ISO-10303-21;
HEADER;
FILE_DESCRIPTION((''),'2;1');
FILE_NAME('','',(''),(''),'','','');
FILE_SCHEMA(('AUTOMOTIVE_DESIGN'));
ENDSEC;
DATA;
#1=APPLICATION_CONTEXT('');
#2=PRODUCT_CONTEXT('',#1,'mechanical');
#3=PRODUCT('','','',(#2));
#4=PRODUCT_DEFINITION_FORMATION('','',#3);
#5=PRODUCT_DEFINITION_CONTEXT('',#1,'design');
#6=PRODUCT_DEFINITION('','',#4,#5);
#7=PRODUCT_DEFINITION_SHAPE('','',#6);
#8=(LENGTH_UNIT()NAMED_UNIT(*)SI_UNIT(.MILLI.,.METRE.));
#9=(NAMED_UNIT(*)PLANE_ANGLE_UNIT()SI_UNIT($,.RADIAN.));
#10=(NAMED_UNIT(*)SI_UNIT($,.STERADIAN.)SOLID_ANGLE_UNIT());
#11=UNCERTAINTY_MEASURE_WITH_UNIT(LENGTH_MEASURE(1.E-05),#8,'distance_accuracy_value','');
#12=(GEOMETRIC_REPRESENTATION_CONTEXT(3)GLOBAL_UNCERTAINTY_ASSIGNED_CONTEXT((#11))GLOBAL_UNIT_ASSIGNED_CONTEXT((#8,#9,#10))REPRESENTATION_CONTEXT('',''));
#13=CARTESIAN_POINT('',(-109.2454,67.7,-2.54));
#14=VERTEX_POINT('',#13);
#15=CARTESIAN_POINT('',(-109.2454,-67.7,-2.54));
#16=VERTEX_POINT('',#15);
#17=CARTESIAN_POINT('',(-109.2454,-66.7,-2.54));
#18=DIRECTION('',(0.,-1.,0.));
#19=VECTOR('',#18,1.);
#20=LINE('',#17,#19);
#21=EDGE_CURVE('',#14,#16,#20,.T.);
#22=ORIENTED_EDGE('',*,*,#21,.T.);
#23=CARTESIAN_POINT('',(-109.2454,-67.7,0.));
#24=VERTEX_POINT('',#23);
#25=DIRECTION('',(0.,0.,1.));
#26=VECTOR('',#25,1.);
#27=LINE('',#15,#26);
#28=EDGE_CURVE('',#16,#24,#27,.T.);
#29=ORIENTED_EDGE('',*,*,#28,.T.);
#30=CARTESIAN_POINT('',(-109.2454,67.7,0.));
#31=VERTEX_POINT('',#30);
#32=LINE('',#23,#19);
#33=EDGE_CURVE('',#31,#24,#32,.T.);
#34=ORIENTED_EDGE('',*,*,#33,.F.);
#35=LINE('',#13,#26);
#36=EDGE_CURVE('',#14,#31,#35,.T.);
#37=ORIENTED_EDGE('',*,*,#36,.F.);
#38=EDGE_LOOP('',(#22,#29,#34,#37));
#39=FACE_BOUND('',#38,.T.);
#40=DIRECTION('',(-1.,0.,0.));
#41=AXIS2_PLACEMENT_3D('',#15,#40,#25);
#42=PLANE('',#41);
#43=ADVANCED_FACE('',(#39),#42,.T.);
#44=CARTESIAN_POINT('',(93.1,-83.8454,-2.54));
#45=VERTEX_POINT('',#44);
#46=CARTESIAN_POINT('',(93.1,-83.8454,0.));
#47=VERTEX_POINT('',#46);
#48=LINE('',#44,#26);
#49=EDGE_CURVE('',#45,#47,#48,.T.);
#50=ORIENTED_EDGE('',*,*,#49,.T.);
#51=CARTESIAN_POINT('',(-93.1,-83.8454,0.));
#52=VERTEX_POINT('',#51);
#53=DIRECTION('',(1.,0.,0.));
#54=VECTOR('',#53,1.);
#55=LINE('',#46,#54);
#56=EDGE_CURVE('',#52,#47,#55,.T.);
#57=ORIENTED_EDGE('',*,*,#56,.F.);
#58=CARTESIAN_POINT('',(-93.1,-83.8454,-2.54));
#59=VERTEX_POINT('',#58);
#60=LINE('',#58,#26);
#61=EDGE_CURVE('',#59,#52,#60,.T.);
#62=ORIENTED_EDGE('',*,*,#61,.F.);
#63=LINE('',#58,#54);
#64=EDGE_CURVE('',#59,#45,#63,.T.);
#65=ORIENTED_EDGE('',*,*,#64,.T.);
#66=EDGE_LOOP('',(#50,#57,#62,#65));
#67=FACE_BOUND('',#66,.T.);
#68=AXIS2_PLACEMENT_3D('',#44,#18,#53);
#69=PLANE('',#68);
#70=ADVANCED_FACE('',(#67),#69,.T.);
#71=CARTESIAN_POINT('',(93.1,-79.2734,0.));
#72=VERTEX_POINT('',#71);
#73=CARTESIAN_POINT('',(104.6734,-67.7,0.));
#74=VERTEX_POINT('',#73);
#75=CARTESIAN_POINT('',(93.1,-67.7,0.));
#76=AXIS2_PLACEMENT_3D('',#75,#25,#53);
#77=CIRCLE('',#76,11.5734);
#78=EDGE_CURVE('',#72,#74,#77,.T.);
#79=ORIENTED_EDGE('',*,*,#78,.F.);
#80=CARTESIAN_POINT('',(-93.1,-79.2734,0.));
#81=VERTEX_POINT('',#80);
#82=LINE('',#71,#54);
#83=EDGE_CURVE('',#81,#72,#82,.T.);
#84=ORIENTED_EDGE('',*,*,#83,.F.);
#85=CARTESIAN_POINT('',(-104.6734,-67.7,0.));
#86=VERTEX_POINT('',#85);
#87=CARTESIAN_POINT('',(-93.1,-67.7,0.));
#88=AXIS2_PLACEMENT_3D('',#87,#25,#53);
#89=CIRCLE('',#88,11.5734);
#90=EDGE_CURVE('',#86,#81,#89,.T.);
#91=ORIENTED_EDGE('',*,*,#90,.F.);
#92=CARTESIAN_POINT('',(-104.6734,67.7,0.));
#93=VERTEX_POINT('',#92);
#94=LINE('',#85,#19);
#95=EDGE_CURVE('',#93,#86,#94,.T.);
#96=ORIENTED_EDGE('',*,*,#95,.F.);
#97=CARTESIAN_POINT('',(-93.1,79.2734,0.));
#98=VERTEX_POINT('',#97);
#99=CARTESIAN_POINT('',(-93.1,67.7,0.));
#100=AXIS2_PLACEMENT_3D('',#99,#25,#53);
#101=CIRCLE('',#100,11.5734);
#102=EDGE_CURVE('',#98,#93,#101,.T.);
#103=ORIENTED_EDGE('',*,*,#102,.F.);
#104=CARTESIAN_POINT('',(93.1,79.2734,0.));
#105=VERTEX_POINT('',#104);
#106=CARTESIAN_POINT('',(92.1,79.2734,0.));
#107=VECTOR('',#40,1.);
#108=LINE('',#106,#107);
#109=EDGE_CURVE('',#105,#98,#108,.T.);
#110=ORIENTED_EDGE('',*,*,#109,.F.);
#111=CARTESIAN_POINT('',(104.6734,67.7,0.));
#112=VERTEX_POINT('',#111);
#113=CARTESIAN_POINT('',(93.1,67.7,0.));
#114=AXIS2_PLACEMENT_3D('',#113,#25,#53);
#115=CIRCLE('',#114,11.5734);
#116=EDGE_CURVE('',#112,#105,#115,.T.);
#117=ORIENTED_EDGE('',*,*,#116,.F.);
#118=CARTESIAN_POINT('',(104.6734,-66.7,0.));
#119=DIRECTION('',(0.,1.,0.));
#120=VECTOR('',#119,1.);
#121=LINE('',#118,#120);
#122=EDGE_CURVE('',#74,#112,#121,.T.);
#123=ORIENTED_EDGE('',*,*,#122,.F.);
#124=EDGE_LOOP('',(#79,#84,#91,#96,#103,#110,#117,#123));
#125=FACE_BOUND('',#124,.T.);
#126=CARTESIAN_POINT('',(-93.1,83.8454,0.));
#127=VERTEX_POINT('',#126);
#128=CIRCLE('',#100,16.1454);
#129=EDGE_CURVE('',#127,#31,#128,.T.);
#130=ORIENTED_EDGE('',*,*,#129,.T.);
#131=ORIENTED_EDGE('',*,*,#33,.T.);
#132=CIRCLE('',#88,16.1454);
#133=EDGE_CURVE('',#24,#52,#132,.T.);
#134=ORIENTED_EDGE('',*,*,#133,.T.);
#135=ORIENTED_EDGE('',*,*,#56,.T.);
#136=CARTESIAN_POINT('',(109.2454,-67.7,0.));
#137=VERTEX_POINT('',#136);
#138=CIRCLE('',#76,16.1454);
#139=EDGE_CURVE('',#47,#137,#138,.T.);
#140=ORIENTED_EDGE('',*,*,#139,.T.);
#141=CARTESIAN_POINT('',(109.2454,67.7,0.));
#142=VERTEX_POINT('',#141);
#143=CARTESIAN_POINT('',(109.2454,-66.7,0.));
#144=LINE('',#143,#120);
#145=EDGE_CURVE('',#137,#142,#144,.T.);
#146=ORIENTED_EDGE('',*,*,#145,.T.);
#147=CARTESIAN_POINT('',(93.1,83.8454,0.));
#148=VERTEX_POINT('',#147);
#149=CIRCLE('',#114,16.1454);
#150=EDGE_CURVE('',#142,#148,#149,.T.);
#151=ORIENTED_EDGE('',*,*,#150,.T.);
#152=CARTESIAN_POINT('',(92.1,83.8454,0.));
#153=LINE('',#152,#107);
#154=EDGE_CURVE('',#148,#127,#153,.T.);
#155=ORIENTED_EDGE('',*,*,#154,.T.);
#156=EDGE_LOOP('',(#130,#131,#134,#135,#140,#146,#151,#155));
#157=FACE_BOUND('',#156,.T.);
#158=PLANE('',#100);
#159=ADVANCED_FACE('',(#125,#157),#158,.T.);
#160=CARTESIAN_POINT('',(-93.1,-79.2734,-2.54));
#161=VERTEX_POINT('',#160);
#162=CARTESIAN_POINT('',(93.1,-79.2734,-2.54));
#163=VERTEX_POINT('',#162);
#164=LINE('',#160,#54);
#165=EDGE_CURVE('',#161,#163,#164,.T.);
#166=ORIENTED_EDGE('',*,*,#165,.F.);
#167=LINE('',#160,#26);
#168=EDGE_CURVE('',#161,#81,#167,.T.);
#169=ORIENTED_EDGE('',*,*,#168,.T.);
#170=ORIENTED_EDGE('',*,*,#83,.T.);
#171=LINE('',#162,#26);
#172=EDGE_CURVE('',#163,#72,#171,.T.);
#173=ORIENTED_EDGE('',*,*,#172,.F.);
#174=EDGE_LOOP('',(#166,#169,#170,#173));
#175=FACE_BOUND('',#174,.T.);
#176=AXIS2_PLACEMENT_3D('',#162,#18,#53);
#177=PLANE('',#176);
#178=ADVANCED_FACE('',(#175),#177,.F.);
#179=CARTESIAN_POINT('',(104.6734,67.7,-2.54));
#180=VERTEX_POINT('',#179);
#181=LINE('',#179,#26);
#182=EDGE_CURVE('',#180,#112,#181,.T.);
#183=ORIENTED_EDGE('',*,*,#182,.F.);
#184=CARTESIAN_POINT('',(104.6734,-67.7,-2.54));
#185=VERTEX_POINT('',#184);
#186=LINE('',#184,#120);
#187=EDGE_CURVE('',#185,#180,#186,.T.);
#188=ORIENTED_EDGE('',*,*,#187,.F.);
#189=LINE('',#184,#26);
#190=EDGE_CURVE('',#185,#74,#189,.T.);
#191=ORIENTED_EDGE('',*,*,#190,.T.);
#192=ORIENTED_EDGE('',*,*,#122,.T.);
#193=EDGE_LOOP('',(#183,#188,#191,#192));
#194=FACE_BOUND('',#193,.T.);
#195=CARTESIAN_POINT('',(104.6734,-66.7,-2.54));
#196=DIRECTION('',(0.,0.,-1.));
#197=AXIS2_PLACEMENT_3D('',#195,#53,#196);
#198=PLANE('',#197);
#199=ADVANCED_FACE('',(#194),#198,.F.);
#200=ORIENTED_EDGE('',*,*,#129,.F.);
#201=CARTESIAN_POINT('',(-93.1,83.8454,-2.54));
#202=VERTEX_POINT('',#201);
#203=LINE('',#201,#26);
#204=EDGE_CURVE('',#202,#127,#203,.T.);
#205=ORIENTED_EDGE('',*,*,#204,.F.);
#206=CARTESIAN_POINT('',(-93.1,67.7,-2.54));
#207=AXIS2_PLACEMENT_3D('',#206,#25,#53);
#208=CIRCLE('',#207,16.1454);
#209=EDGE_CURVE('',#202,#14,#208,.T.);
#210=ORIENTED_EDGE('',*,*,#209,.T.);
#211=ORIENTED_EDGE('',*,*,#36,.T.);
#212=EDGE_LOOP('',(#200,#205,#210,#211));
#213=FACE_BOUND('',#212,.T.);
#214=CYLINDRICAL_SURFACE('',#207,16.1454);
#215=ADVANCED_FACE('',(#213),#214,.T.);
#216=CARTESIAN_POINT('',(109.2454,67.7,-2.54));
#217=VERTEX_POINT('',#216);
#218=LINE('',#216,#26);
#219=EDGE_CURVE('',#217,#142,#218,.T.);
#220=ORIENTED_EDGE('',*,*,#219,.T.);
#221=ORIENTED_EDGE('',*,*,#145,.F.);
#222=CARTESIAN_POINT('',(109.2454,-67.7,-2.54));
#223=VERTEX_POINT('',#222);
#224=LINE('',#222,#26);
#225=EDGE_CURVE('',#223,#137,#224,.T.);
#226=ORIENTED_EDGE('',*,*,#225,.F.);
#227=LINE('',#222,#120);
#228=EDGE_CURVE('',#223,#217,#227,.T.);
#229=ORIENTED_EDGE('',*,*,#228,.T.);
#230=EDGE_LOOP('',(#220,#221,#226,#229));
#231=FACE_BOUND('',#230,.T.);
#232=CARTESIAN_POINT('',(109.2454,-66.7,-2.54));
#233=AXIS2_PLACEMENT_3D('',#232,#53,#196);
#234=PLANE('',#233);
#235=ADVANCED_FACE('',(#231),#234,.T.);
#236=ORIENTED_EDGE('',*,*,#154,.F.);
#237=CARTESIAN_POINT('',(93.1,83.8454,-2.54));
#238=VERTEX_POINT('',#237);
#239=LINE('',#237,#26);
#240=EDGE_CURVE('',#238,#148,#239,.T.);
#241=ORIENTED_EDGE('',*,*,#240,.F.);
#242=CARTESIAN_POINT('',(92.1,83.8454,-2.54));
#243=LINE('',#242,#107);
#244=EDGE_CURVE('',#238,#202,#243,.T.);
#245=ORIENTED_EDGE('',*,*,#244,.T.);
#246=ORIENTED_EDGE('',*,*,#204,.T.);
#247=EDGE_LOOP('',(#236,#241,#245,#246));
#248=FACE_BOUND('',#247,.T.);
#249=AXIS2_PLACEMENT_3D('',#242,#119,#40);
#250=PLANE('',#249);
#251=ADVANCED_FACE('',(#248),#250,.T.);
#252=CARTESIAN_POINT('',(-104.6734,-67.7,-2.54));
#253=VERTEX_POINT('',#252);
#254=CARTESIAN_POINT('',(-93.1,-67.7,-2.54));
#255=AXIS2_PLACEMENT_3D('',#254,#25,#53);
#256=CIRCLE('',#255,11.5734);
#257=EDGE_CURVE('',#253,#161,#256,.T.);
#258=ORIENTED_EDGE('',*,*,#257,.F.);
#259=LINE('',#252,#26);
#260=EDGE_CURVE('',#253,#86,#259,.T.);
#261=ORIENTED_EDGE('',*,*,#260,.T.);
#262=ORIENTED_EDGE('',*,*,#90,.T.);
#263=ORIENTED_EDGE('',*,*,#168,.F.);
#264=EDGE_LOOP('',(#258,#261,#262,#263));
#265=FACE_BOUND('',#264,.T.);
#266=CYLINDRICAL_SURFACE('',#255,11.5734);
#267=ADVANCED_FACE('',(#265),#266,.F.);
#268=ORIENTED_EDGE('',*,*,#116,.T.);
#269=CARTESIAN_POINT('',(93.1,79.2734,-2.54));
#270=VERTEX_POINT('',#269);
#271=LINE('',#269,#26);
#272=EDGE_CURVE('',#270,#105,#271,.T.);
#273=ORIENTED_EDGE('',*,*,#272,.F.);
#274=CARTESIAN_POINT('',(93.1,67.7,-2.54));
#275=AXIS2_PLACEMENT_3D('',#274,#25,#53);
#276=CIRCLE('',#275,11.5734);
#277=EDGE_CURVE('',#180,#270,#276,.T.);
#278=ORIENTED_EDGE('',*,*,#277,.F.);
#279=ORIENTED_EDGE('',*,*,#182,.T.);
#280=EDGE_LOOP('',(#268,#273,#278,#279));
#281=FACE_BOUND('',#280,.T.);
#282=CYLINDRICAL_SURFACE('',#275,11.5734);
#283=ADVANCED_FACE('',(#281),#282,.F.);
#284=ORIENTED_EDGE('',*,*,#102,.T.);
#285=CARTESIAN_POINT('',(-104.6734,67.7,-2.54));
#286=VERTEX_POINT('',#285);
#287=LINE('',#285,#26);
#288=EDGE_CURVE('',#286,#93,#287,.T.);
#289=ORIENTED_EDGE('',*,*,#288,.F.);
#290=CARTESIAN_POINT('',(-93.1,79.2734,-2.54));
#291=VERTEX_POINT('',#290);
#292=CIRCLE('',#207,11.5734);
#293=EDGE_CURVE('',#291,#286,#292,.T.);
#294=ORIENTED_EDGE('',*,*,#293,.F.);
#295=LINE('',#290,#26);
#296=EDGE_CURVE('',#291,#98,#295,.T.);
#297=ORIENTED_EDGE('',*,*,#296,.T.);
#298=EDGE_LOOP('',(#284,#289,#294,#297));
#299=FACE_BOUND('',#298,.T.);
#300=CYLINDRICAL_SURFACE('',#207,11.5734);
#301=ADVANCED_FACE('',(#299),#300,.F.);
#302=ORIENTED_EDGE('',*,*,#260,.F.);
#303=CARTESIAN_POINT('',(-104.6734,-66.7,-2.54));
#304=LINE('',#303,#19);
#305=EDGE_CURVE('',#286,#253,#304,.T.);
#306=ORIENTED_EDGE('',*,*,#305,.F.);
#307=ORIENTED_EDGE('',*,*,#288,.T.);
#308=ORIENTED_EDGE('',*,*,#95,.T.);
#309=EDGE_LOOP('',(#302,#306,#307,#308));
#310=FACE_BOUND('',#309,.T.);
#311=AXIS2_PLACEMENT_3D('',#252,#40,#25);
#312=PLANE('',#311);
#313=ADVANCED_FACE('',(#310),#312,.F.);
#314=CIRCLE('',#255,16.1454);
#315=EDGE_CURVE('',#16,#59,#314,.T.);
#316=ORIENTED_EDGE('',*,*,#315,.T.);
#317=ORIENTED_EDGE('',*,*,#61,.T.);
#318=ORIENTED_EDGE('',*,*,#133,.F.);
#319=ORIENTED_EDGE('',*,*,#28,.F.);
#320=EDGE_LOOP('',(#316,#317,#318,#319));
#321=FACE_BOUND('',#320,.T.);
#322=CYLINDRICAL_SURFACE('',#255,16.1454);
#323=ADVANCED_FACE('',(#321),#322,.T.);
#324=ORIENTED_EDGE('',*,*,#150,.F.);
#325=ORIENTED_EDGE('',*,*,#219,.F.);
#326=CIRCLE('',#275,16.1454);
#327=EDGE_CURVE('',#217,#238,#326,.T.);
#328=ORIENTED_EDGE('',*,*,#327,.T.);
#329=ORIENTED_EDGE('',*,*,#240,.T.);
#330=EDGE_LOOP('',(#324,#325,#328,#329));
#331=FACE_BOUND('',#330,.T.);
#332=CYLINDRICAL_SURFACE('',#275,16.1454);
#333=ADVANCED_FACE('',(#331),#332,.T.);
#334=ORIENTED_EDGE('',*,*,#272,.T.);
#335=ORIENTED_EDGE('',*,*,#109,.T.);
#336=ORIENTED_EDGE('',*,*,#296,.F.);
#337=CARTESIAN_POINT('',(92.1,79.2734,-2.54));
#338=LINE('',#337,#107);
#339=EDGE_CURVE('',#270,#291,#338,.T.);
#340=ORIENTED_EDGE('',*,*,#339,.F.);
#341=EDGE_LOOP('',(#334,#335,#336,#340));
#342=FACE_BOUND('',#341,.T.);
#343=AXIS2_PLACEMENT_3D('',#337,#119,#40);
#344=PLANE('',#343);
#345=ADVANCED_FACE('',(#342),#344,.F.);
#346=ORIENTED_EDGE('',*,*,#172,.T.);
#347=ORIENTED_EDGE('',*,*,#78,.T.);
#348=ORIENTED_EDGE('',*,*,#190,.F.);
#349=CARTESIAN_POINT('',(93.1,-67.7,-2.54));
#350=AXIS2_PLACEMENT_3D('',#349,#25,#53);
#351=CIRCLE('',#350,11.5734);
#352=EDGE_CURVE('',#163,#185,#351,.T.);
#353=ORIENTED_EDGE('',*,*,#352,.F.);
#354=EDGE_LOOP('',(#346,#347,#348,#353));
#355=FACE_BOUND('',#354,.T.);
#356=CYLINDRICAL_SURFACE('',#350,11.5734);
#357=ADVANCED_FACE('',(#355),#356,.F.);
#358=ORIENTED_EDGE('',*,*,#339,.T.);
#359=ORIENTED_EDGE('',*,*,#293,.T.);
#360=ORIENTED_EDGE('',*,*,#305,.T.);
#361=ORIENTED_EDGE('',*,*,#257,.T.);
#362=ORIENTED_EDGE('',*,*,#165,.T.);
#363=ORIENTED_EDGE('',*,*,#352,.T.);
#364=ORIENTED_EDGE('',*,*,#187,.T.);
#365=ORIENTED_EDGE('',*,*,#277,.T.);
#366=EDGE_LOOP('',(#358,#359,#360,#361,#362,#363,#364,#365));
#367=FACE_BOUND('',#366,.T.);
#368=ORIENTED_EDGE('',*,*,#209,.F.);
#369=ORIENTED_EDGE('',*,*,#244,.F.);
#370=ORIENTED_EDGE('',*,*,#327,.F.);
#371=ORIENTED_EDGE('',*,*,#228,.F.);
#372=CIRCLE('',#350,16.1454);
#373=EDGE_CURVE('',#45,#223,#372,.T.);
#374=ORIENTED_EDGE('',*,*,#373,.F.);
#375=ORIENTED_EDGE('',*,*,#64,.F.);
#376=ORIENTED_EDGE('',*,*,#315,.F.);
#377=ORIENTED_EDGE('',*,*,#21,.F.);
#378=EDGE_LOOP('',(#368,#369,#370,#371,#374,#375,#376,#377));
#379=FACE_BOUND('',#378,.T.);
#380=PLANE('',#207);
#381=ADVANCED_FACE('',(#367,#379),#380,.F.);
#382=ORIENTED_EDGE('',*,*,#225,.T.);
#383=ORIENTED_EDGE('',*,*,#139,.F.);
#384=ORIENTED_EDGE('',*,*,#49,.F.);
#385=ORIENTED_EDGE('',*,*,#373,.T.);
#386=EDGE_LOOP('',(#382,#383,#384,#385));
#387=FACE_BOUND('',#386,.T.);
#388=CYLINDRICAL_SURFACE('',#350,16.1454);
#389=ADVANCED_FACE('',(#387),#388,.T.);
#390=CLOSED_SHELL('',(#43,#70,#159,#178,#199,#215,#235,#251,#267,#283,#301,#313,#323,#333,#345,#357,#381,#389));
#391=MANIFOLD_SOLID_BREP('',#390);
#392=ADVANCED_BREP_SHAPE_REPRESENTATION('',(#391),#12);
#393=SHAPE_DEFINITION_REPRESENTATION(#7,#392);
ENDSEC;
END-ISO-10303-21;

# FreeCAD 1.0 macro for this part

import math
import FreeCAD as App
import Part
import Sketcher
from FreeCAD import Vector
Q = App.Units.Quantity

doc = App.newDocument("Part")
params = doc.addObject("Spreadsheet::Sheet", "Params")
for row, (alias, value) in enumerate([
    ("sketch1_width", "186.2 mm"),
    ("sketch1_height", "135.4 mm"),
    ("pad1_length", "2.54 mm"),
], start=1):
    params.set(f"A{row}", alias)
    params.set(f"B{row}", "=" + value)
    params.setAlias(f"B{row}", alias)

body = doc.addObject("PartDesign::Body", "Body")

# Sketch on XY plane
sketch1 = doc.addObject("Sketcher::SketchObject", "Sketch")
body.addObject(sketch1)
sketch1.AttachmentSupport = (doc.XY_Plane, [""])
sketch1.MapMode = "FlatFace"
sketch1.addGeometry(Part.ArcOfCircle(Part.Circle(Vector(-93, 68, 0), Vector(0, 0, 1), 16), math.radians(90), math.radians(180)), False)
sketch1.addGeometry(Part.LineSegment(Vector(-109, 68, 0), Vector(-109, -68, 0)), False)
sketch1.addGeometry(Part.ArcOfCircle(Part.Circle(Vector(-93, -68, 0), Vector(0, 0, 1), 16), math.radians(180), math.radians(270)), False)
sketch1.addGeometry(Part.LineSegment(Vector(-93, -84, 0), Vector(93, -84, 0)), False)
sketch1.addGeometry(Part.ArcOfCircle(Part.Circle(Vector(93, -68, 0), Vector(0, 0, 1), 16), math.radians(-90), math.radians(0)), False)
sketch1.addGeometry(Part.LineSegment(Vector(109, -68, 0), Vector(109, 68, 0)), False)
sketch1.addGeometry(Part.ArcOfCircle(Part.Circle(Vector(93, 68, 0), Vector(0, 0, 1), 16), math.radians(0), math.radians(90)), False)
sketch1.addGeometry(Part.LineSegment(Vector(93, 84, 0), Vector(-93, 84, 0)), False)
sketch1.addGeometry(Part.ArcOfCircle(Part.Circle(Vector(-93, 68, 0), Vector(0, 0, 1), 12), math.radians(90), math.radians(180)), False)
sketch1.addGeometry(Part.LineSegment(Vector(-93, 79, 0), Vector(93, 79, 0)), False)
sketch1.addGeometry(Part.ArcOfCircle(Part.Circle(Vector(93, 68, 0), Vector(0, 0, 1), 12), math.radians(0), math.radians(90)), False)
sketch1.addGeometry(Part.LineSegment(Vector(105, 68, 0), Vector(105, -68, 0)), False)
sketch1.addGeometry(Part.ArcOfCircle(Part.Circle(Vector(93, -68, 0), Vector(0, 0, 1), 12), math.radians(-90), math.radians(0)), False)
sketch1.addGeometry(Part.LineSegment(Vector(93, -79, 0), Vector(-93, -79, 0)), False)
sketch1.addGeometry(Part.ArcOfCircle(Part.Circle(Vector(-93, -68, 0), Vector(0, 0, 1), 12), math.radians(-180), math.radians(-90)), False)
sketch1.addGeometry(Part.LineSegment(Vector(-105, -68, 0), Vector(-105, 68, 0)), False)
sketch1.addConstraint(Sketcher.Constraint("Tangent", 0, 2, 1, 1))
sketch1.addConstraint(Sketcher.Constraint("Tangent", 1, 2, 2, 1))
sketch1.addConstraint(Sketcher.Constraint("Tangent", 2, 2, 3, 1))
sketch1.addConstraint(Sketcher.Constraint("Tangent", 3, 2, 4, 1))
sketch1.addConstraint(Sketcher.Constraint("Tangent", 4, 2, 5, 1))
sketch1.addConstraint(Sketcher.Constraint("Tangent", 5, 2, 6, 1))
sketch1.addConstraint(Sketcher.Constraint("Tangent", 6, 2, 7, 1))
sketch1.addConstraint(Sketcher.Constraint("Tangent", 7, 2, 0, 1))
sketch1.addConstraint(Sketcher.Constraint("Tangent", 8, 1, 9, 1))
sketch1.addConstraint(Sketcher.Constraint("Tangent", 9, 2, 10, 2))
sketch1.addConstraint(Sketcher.Constraint("Tangent", 10, 1, 11, 1))
sketch1.addConstraint(Sketcher.Constraint("Tangent", 11, 2, 12, 2))
sketch1.addConstraint(Sketcher.Constraint("Tangent", 12, 1, 13, 1))
sketch1.addConstraint(Sketcher.Constraint("Tangent", 13, 2, 14, 2))
sketch1.addConstraint(Sketcher.Constraint("Tangent", 14, 1, 15, 1))
sketch1.addConstraint(Sketcher.Constraint("Tangent", 15, 2, 8, 2))
sketch1.addConstraint(Sketcher.Constraint("Vertical", 1))
sketch1.addConstraint(Sketcher.Constraint("Horizontal", 3))
sketch1.addConstraint(Sketcher.Constraint("Vertical", 5))
sketch1.addConstraint(Sketcher.Constraint("Horizontal", 7))
sketch1.addConstraint(Sketcher.Constraint("Horizontal", 9))
sketch1.addConstraint(Sketcher.Constraint("Vertical", 11))
sketch1.addConstraint(Sketcher.Constraint("Horizontal", 13))
sketch1.addConstraint(Sketcher.Constraint("Vertical", 15))
sketch1.addConstraint(Sketcher.Constraint("Coincident", 8, 3, 0, 3))
sketch1.addConstraint(Sketcher.Constraint("Coincident", 10, 3, 6, 3))
sketch1.addConstraint(Sketcher.Constraint("Coincident", 12, 3, 4, 3))
sketch1.addConstraint(Sketcher.Constraint("Equal", 0, 2))
sketch1.addConstraint(Sketcher.Constraint("Equal", 2, 4))
sketch1.addConstraint(Sketcher.Constraint("Equal", 4, 6))
sketch1.addConstraint(Sketcher.Constraint("Equal", 12, 14))
sketch1.addConstraint(Sketcher.Constraint("Symmetric", 0, 3, 4, 3, -1, 1))
sketch1.addConstraint(Sketcher.Constraint("DistanceX", 3, 1, 3, 2, Q("186.2 mm")))
sketch1.addConstraint(Sketcher.Constraint("DistanceY", 1, 2, 1, 1, Q("135.4 mm")))
sketch1.addConstraint(Sketcher.Constraint("Radius", 0, Q("16.1454 mm")))
sketch1.addConstraint(Sketcher.Constraint("Radius", 8, Q("11.5734 mm")))
sketch1.setExpression("Constraints[32]", "Params.sketch1_width")
sketch1.setExpression("Constraints[33]", "Params.sketch1_height")
pad1 = doc.addObject("PartDesign::Pad", "Pad")
body.addObject(pad1)
pad1.Profile = sketch1
pad1.setExpression("Length", "Params.pad1_length")
pad1.Reversed = True

doc.recompute()
